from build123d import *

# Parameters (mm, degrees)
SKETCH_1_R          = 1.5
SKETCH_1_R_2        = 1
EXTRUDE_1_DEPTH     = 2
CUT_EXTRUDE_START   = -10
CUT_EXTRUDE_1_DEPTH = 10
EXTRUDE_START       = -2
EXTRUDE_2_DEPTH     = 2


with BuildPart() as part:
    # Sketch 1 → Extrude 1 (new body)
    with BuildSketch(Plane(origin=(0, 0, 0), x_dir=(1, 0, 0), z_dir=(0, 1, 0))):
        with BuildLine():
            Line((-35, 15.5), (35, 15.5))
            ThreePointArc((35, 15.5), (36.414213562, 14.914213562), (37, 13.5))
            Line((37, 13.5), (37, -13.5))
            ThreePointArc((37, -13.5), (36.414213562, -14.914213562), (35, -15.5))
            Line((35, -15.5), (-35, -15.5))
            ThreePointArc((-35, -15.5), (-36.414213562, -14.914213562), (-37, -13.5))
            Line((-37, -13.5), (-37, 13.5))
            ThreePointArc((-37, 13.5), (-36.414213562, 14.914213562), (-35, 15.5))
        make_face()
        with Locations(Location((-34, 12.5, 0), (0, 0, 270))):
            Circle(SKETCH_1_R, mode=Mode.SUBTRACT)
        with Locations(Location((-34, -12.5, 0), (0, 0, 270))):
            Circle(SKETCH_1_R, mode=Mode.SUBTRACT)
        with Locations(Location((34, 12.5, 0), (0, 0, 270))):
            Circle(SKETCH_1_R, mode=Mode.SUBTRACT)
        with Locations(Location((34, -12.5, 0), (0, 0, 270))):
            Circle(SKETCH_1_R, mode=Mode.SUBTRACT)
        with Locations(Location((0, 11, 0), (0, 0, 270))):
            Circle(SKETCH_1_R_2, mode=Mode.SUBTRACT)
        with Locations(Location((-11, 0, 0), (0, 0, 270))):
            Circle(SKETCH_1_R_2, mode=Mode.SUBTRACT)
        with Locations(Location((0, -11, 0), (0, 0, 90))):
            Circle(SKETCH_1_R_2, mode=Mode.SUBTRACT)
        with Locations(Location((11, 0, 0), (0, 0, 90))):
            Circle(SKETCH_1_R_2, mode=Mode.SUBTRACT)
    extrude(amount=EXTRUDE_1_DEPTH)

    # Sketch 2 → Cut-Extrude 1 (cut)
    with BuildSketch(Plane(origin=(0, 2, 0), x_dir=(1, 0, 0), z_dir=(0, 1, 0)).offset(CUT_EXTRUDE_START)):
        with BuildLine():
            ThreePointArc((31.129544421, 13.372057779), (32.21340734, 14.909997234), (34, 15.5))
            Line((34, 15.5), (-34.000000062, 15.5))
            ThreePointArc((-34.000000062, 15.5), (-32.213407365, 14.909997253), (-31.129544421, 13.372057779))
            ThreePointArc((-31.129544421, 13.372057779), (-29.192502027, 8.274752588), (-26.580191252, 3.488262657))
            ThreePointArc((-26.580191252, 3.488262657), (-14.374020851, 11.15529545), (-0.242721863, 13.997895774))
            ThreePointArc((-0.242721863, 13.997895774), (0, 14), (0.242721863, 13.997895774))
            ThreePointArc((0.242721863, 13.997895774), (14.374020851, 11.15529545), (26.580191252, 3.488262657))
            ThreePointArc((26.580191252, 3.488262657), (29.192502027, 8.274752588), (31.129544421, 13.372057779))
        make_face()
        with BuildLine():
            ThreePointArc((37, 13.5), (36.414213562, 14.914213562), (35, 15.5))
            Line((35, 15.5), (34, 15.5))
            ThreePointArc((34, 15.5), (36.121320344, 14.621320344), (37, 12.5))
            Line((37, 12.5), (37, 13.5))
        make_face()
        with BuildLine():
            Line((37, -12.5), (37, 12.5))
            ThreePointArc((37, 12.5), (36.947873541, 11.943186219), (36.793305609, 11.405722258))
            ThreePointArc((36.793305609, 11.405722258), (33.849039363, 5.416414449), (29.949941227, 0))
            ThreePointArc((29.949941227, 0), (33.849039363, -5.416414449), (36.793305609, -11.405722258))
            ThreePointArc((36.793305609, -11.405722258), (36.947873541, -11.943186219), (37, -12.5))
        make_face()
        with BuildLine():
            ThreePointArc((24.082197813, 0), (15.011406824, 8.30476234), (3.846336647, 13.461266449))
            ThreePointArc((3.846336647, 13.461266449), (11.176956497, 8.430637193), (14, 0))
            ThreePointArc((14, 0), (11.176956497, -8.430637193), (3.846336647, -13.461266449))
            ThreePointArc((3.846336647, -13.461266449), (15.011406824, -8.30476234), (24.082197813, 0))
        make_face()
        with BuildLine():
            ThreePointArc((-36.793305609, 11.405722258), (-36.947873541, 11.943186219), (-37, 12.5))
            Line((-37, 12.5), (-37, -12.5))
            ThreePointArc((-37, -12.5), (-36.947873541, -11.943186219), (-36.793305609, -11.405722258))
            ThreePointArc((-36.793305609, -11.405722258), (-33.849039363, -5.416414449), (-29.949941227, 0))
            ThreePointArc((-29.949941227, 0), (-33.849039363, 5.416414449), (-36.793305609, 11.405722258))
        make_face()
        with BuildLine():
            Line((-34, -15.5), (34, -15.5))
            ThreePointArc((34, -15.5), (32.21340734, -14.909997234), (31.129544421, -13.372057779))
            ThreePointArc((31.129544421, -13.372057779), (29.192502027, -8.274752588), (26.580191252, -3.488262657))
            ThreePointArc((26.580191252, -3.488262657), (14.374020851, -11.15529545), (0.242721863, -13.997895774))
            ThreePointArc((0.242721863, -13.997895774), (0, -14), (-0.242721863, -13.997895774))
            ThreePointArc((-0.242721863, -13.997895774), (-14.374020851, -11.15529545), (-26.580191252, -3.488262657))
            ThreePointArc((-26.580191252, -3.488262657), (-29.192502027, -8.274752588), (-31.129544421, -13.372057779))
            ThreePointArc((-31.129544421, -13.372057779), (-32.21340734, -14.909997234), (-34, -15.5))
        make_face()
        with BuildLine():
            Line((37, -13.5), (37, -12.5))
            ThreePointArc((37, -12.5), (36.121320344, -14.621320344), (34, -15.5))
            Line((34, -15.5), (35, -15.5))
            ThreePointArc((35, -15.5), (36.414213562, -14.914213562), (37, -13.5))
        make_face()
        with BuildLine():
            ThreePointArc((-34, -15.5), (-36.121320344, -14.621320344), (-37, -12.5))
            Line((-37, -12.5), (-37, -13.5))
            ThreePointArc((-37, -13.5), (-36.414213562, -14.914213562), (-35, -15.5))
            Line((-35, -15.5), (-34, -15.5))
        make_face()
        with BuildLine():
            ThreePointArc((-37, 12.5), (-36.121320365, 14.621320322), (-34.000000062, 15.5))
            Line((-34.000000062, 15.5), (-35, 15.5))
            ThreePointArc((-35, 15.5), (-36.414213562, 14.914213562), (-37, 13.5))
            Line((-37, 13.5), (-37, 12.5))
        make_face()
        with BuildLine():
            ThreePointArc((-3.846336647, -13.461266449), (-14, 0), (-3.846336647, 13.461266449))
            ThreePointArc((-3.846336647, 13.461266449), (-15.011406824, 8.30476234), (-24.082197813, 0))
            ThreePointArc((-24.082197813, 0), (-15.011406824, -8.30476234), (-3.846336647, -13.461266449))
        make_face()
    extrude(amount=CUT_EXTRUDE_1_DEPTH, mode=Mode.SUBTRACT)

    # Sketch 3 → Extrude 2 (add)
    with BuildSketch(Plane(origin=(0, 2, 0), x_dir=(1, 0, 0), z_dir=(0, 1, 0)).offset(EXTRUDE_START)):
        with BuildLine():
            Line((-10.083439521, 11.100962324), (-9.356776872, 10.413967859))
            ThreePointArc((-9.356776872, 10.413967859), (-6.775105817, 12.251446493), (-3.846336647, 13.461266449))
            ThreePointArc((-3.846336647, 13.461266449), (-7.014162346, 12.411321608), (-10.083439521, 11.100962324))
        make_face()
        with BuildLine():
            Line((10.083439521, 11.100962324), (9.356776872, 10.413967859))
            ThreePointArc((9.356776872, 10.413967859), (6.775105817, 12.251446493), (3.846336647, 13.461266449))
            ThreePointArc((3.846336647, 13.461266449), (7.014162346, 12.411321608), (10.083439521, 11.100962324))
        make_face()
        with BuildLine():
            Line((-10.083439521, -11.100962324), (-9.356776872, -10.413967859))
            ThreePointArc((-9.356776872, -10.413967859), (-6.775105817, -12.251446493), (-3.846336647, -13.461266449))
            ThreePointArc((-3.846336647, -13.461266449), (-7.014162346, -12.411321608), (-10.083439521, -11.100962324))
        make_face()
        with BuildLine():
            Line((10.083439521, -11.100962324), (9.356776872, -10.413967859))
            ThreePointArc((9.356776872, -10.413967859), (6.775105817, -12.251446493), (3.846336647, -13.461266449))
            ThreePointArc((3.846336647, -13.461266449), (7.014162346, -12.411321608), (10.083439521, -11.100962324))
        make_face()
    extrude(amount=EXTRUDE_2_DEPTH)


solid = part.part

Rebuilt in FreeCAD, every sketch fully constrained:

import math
import FreeCAD as App
import Part
import Sketcher

V = App.Vector
Q = App.Units.Quantity

doc = App.newDocument("Part")
body = doc.addObject("PartDesign::Body", "Body")

# Sketch on XZ plane
sketch1 = doc.addObject("Sketcher::SketchObject", "Sketch")
body.addObject(sketch1)
sketch1.AttachmentSupport = (doc.XZ_Plane, [""])
sketch1.MapMode = "FlatFace"
sketch1.addGeometry(Part.LineSegment(V(35, -15.5, 0), V(-35, -15.5, 0)), False)
sketch1.addGeometry(Part.ArcOfCircle(Part.Circle(V(-35, -13.5, 0), V(0, 0, 1), 2), math.radians(-180), math.radians(-90)), False)
sketch1.addGeometry(Part.LineSegment(V(-37, -13.5, 0), V(-37, 13.5, 0)), False)
sketch1.addGeometry(Part.ArcOfCircle(Part.Circle(V(-35, 13.5, 0), V(0, 0, 1), 2), math.radians(90), math.radians(180)), False)
sketch1.addGeometry(Part.LineSegment(V(-35, 15.5, 0), V(35, 15.5, 0)), False)
sketch1.addGeometry(Part.ArcOfCircle(Part.Circle(V(35, 13.5, 0), V(0, 0, 1), 2), math.radians(0), math.radians(90)), False)
sketch1.addGeometry(Part.LineSegment(V(37, 13.5, 0), V(37, -13.5, 0)), False)
sketch1.addGeometry(Part.ArcOfCircle(Part.Circle(V(35, -13.5, 0), V(0, 0, 1), 2), math.radians(-90), math.radians(0)), False)
sketch1.addGeometry(Part.Circle(V(34, 12.5, 0), V(0, 0, 1), 1.5), False)
sketch1.addGeometry(Part.Circle(V(0, 11, 0), V(0, 0, 1), 1), False)
sketch1.addGeometry(Part.Circle(V(-34, 12.5, 0), V(0, 0, 1), 1.5), False)
sketch1.addGeometry(Part.Circle(V(11, 0, 0), V(0, 0, 1), 1), False)
sketch1.addGeometry(Part.Circle(V(34, -12.5, 0), V(0, 0, 1), 1.5), False)
sketch1.addGeometry(Part.Circle(V(-11, 0, 0), V(0, 0, 1), 1), False)
sketch1.addGeometry(Part.Circle(V(0, -11, 0), V(0, 0, 1), 1), False)
sketch1.addGeometry(Part.Circle(V(-34, -12.5, 0), V(0, 0, 1), 1.5), False)
sketch1.addConstraint(Sketcher.Constraint("Tangent", 0, 2, 1, 2))
sketch1.addConstraint(Sketcher.Constraint("Tangent", 1, 1, 2, 1))
sketch1.addConstraint(Sketcher.Constraint("Tangent", 2, 2, 3, 2))
sketch1.addConstraint(Sketcher.Constraint("Tangent", 3, 1, 4, 1))
sketch1.addConstraint(Sketcher.Constraint("Tangent", 4, 2, 5, 2))
sketch1.addConstraint(Sketcher.Constraint("Tangent", 5, 1, 6, 1))
sketch1.addConstraint(Sketcher.Constraint("Tangent", 6, 2, 7, 2))
sketch1.addConstraint(Sketcher.Constraint("Tangent", 7, 1, 0, 1))
sketch1.addConstraint(Sketcher.Constraint("Horizontal", 0))
sketch1.addConstraint(Sketcher.Constraint("Vertical", 2))
sketch1.addConstraint(Sketcher.Constraint("Horizontal", 4))
sketch1.addConstraint(Sketcher.Constraint("Vertical", 6))
sketch1.addConstraint(Sketcher.Constraint("Equal", 1, 3))
sketch1.addConstraint(Sketcher.Constraint("Equal", 3, 5))
sketch1.addConstraint(Sketcher.Constraint("Equal", 5, 7))
sketch1.addConstraint(Sketcher.Constraint("Equal", 8, 10))
sketch1.addConstraint(Sketcher.Constraint("Equal", 9, 11))
sketch1.addConstraint(Sketcher.Constraint("Equal", 10, 12))
sketch1.addConstraint(Sketcher.Constraint("Equal", 11, 13))
sketch1.addConstraint(Sketcher.Constraint("Equal", 13, 14))
sketch1.addConstraint(Sketcher.Constraint("Equal", 12, 15))
sketch1.addConstraint(Sketcher.Constraint("Symmetric", 1, 3, 5, 3, -1, 1))
sketch1.addConstraint(Sketcher.Constraint("Symmetric", 10, 3, 12, 3, -1, 1))
sketch1.addConstraint(Sketcher.Constraint("Symmetric", 11, 3, 13, 3, -1, 1))
sketch1.addConstraint(Sketcher.Constraint("Symmetric", 9, 3, 14, 3, -1, 1))
sketch1.addConstraint(Sketcher.Constraint("Symmetric", 8, 3, 15, 3, -1, 1))
sketch1.addConstraint(Sketcher.Constraint("Symmetric", 8, 3, 10, 3, -2))
sketch1.addConstraint(Sketcher.Constraint("PointOnObject", 9, 3, -2))
sketch1.addConstraint(Sketcher.Constraint("PointOnObject", 11, 3, -1))
sketch1.addConstraint(Sketcher.Constraint("Diameter", 8, Q("3 mm")))
sketch1.addConstraint(Sketcher.Constraint("Diameter", 9, Q("2 mm")))
sketch1.addConstraint(Sketcher.Constraint("Radius", 1, Q("2 mm")))
sketch1.addConstraint(Sketcher.Constraint("DistanceX", 0, 2, 0, 1, Q("70 mm")))
sketch1.addConstraint(Sketcher.Constraint("DistanceY", 2, 1, 2, 2, Q("27 mm")))
sketch1.addConstraint(Sketcher.Constraint("DistanceX", -1, 1, 8, 3, Q("34 mm")))
sketch1.addConstraint(Sketcher.Constraint("DistanceY", -1, 1, 9, 3, Q("11 mm")))
sketch1.addConstraint(Sketcher.Constraint("DistanceX", -1, 1, 11, 3, Q("11 mm")))
sketch1.addConstraint(Sketcher.Constraint("DistanceY", 8, 3, 5, 3, Q("1 mm")))
pad1 = doc.addObject("PartDesign::Pad", "Pad")
body.addObject(pad1)
pad1.Profile = sketch1
pad1.Length = 2
pad1.Reversed = True

# Sketch on XZ plane
sketch2 = doc.addObject("Sketcher::SketchObject", "Sketch001")
body.addObject(sketch2)
sketch2.AttachmentSupport = (doc.XZ_Plane, [""])
sketch2.MapMode = "FlatFace"
sketch2.AttachmentOffset = App.Placement(V(0, 0, 8), App.Rotation())
sketch2.addGeometry(Part.ArcOfCircle(Part.Circle(V(34, -12.5, 0), V(0, 0, 1), 3), math.radians(-163), math.radians(-90)), False)
sketch2.addGeometry(Part.LineSegment(V(34, -15.5, 0), V(-34, -15.5, 0)), False)
sketch2.addGeometry(Part.ArcOfCircle(Part.Circle(V(-34, -12.5, 0), V(0, 0, 1), 3), math.radians(-90), math.radians(-17)), False)
sketch2.addGeometry(Part.ArcOfCircle(Part.Circle(V(7.14, -25, 0), V(0, 0, 1), 40), math.radians(147.47), math.radians(163.1)), False)
sketch2.addGeometry(Part.ArcOfCircle(Part.Circle(V(0.45, 26, 0), V(0, 0, 1), 40), math.radians(-133), math.radians(-91)), False)
sketch2.addGeometry(Part.ArcOfCircle(Part.Circle(V(0, 0, 0), V(0, 0, 1), 14), math.radians(-90.99), math.radians(-89.01)), False)
sketch2.addGeometry(Part.ArcOfCircle(Part.Circle(V(-0.45, 26, 0), V(0, 0, 1), 40), math.radians(-89), math.radians(-47)), False)
sketch2.addGeometry(Part.ArcOfCircle(Part.Circle(V(-7.14, -25, 0), V(0, 0, 1), 40), math.radians(16.9), math.radians(32.53)), False)
sketch2.addGeometry(Part.ArcOfCircle(Part.Circle(V(35, -13.5, 0), V(0, 0, 1), 2), math.radians(-90), math.radians(0)), False)
sketch2.addGeometry(Part.LineSegment(V(35, -15.5, 0), V(34, -15.5, 0)), False)
sketch2.addGeometry(Part.ArcOfCircle(Part.Circle(V(34, -12.5, 0), V(0, 0, 1), 3), math.radians(-90), math.radians(0)), False)
sketch2.addGeometry(Part.LineSegment(V(37, -12.5, 0), V(37, -13.5, 0)), False)
sketch2.addGeometry(Part.LineSegment(V(37, 12.5, 0), V(37, -12.5, 0)), False)
sketch2.addGeometry(Part.ArcOfCircle(Part.Circle(V(34, -12.5, 0), V(0, 0, 1), 3), math.radians(0), math.radians(21)), False)
sketch2.addGeometry(Part.ArcOfCircle(Part.Circle(V(-0.45, -26, 0), V(0, 0, 1), 40), math.radians(21.39), math.radians(40.53)), False)
sketch2.addGeometry(Part.ArcOfCircle(Part.Circle(V(-0.45, 26, 0), V(0, 0, 1), 40), math.radians(-40.53), math.radians(-21.39)), False)
sketch2.addGeometry(Part.ArcOfCircle(Part.Circle(V(34, 12.5, 0), V(0, 0, 1), 3), math.radians(-21), math.radians(0)), False)
sketch2.addGeometry(Part.ArcOfCircle(Part.Circle(V(-7.14, 25, 0), V(0, 0, 1), 40), math.radians(-74), math.radians(-39)), False)
sketch2.addGeometry(Part.ArcOfCircle(Part.Circle(V(0, 0, 0), V(0, 0, 1), 14), math.radians(-74), math.radians(0)), False)
sketch2.addGeometry(Part.ArcOfCircle(Part.Circle(V(0, 0, 0), V(0, 0, 1), 14), math.radians(0), math.radians(74)), False)
sketch2.addGeometry(Part.ArcOfCircle(Part.Circle(V(-7.14, -25, 0), V(0, 0, 1), 40), math.radians(39), math.radians(74)), False)
sketch2.addGeometry(Part.ArcOfCircle(Part.Circle(V(-34, -12.5, 0), V(0, 0, 1), 3), math.radians(159), math.radians(180)), False)
sketch2.addGeometry(Part.LineSegment(V(-37, -12.5, 0), V(-37, 12.5, 0)), False)
sketch2.addGeometry(Part.ArcOfCircle(Part.Circle(V(-34, 12.5, 0), V(0, 0, 1), 3), math.radians(180), math.radians(201)), False)
sketch2.addGeometry(Part.ArcOfCircle(Part.Circle(V(0.45, 26, 0), V(0, 0, 1), 40), math.radians(-158.61), math.radians(-139.47)), False)
sketch2.addGeometry(Part.ArcOfCircle(Part.Circle(V(0.45, -26, 0), V(0, 0, 1), 40), math.radians(139.47), math.radians(158.61)), False)
sketch2.addGeometry(Part.LineSegment(V(-34, 15.5, 0), V(34, 15.5, 0)), False)
sketch2.addGeometry(Part.ArcOfCircle(Part.Circle(V(34, 12.5, 0), V(0, 0, 1), 3), math.radians(90), math.radians(163)), False)
sketch2.addGeometry(Part.ArcOfCircle(Part.Circle(V(-7.14, 25, 0), V(0, 0, 1), 40), math.radians(-32.53), math.radians(-16.9)), False)
sketch2.addGeometry(Part.ArcOfCircle(Part.Circle(V(-0.45, -26, 0), V(0, 0, 1), 40), math.radians(47), math.radians(89)), False)
sketch2.addGeometry(Part.ArcOfCircle(Part.Circle(V(0, 0, 0), V(0, 0, 1), 14), math.radians(89.01), math.radians(90.99)), False)
sketch2.addGeometry(Part.ArcOfCircle(Part.Circle(V(0.45, -26, 0), V(0, 0, 1), 40), math.radians(91), math.radians(133)), False)
sketch2.addGeometry(Part.ArcOfCircle(Part.Circle(V(7.14, 25, 0), V(0, 0, 1), 40), math.radians(-163.1), math.radians(-147.47)), False)
sketch2.addGeometry(Part.ArcOfCircle(Part.Circle(V(-34, 12.5, 0), V(0, 0, 1), 3), math.radians(17), math.radians(90)), False)
sketch2.addGeometry(Part.LineSegment(V(37, 13.5, 0), V(37, 12.5, 0)), False)
sketch2.addGeometry(Part.ArcOfCircle(Part.Circle(V(34, 12.5, 0), V(0, 0, 1), 3), math.radians(0), math.radians(90)), False)
sketch2.addGeometry(Part.LineSegment(V(34, 15.5, 0), V(35, 15.5, 0)), False)
sketch2.addGeometry(Part.ArcOfCircle(Part.Circle(V(35, 13.5, 0), V(0, 0, 1), 2), math.radians(0), math.radians(90)), False)
sketch2.addGeometry(Part.ArcOfCircle(Part.Circle(V(-34, 12.5, 0), V(0, 0, 1), 3), math.radians(90), math.radians(180)), False)
sketch2.addGeometry(Part.LineSegment(V(-37, 12.5, 0), V(-37, 13.5, 0)), False)
sketch2.addGeometry(Part.ArcOfCircle(Part.Circle(V(-35, 13.5, 0), V(0, 0, 1), 2), math.radians(90), math.radians(180)), False)
sketch2.addGeometry(Part.LineSegment(V(-35, 15.5, 0), V(-34, 15.5, 0)), False)
sketch2.addGeometry(Part.ArcOfCircle(Part.Circle(V(-34, -12.5, 0), V(0, 0, 1), 3), math.radians(180), math.radians(270)), False)
sketch2.addGeometry(Part.LineSegment(V(-34, -15.5, 0), V(-35, -15.5, 0)), False)
sketch2.addGeometry(Part.ArcOfCircle(Part.Circle(V(-35, -13.5, 0), V(0, 0, 1), 2), math.radians(-180), math.radians(-90)), False)
sketch2.addGeometry(Part.LineSegment(V(-37, -13.5, 0), V(-37, -12.5, 0)), False)
sketch2.addGeometry(Part.ArcOfCircle(Part.Circle(V(0, 0, 0), V(0, 0, 1), 14), math.radians(106), math.radians(254)), False)
sketch2.addGeometry(Part.ArcOfCircle(Part.Circle(V(7.14, 25, 0), V(0, 0, 1), 40), math.radians(-141), math.radians(-106)), False)
sketch2.addGeometry(Part.ArcOfCircle(Part.Circle(V(7.14, -25, 0), V(0, 0, 1), 40), math.radians(106), math.radians(141)), False)
sketch2.addConstraint(Sketcher.Constraint("Tangent", 0, 2, 1, 1))
sketch2.addConstraint(Sketcher.Constraint("Tangent", 1, 2, 2, 1))
sketch2.addConstraint(Sketcher.Constraint("Tangent", 2, 2, 3, 2))
sketch2.addConstraint(Sketcher.Constraint("Coincident", 3, 1, 4, 1))
sketch2.addConstraint(Sketcher.Constraint("Tangent", 4, 2, 5, 1))
sketch2.addConstraint(Sketcher.Constraint("Tangent", 5, 2, 6, 1))
sketch2.addConstraint(Sketcher.Constraint("Coincident", 6, 2, 7, 2))
sketch2.addConstraint(Sketcher.Constraint("Tangent", 7, 1, 0, 1))
sketch2.addConstraint(Sketcher.Constraint("Tangent", 8, 1, 9, 1))
sketch2.addConstraint(Sketcher.Constraint("Tangent", 9, 2, 10, 1))
sketch2.addConstraint(Sketcher.Constraint("Tangent", 10, 2, 11, 1))
sketch2.addConstraint(Sketcher.Constraint("Tangent", 11, 2, 8, 2))
sketch2.addConstraint(Sketcher.Constraint("Tangent", 12, 2, 13, 1))
sketch2.addConstraint(Sketcher.Constraint("Tangent", 13, 2, 14, 1))
sketch2.addConstraint(Sketcher.Constraint("Coincident", 14, 2, 15, 1))
sketch2.addConstraint(Sketcher.Constraint("Tangent", 15, 2, 16, 1))
sketch2.addConstraint(Sketcher.Constraint("Tangent", 16, 2, 12, 1))
sketch2.addConstraint(Sketcher.Constraint("Tangent", 17, 1, 18, 1))
sketch2.addConstraint(Sketcher.Constraint("Tangent", 18, 2, 19, 1))
sketch2.addConstraint(Sketcher.Constraint("Tangent", 19, 2, 20, 2))
sketch2.addConstraint(Sketcher.Constraint("Coincident", 20, 1, 17, 2))
sketch2.addConstraint(Sketcher.Constraint("Tangent", 21, 2, 22, 1))
sketch2.addConstraint(Sketcher.Constraint("Tangent", 22, 2, 23, 1))
sketch2.addConstraint(Sketcher.Constraint("Tangent", 23, 2, 24, 1))
sketch2.addConstraint(Sketcher.Constraint("Coincident", 24, 2, 25, 1))
sketch2.addConstraint(Sketcher.Constraint("Tangent", 25, 2, 21, 1))
sketch2.addConstraint(Sketcher.Constraint("Tangent", 26, 2, 27, 1))
sketch2.addConstraint(Sketcher.Constraint("Tangent", 27, 2, 28, 2))
sketch2.addConstraint(Sketcher.Constraint("Coincident", 28, 1, 29, 1))
sketch2.addConstraint(Sketcher.Constraint("Tangent", 29, 2, 30, 1))
sketch2.addConstraint(Sketcher.Constraint("Tangent", 30, 2, 31, 1))
sketch2.addConstraint(Sketcher.Constraint("Coincident", 31, 2, 32, 2))
sketch2.addConstraint(Sketcher.Constraint("Tangent", 32, 1, 33, 1))
sketch2.addConstraint(Sketcher.Constraint("Tangent", 33, 2, 26, 1))
sketch2.addConstraint(Sketcher.Constraint("Tangent", 34, 2, 35, 1))
sketch2.addConstraint(Sketcher.Constraint("Tangent", 35, 2, 36, 1))
sketch2.addConstraint(Sketcher.Constraint("Tangent", 36, 2, 37, 2))
sketch2.addConstraint(Sketcher.Constraint("Tangent", 37, 1, 34, 1))
sketch2.addConstraint(Sketcher.Constraint("Tangent", 38, 2, 39, 1))
sketch2.addConstraint(Sketcher.Constraint("Tangent", 39, 2, 40, 2))
sketch2.addConstraint(Sketcher.Constraint("Tangent", 40, 1, 41, 1))
sketch2.addConstraint(Sketcher.Constraint("Tangent", 41, 2, 38, 1))
sketch2.addConstraint(Sketcher.Constraint("Tangent", 42, 2, 43, 1))
sketch2.addConstraint(Sketcher.Constraint("Tangent", 43, 2, 44, 2))
sketch2.addConstraint(Sketcher.Constraint("Tangent", 44, 1, 45, 1))
sketch2.addConstraint(Sketcher.Constraint("Tangent", 45, 2, 42, 1))
sketch2.addConstraint(Sketcher.Constraint("Tangent", 46, 2, 47, 2))
sketch2.addConstraint(Sketcher.Constraint("Coincident", 47, 1, 48, 2))
sketch2.addConstraint(Sketcher.Constraint("Tangent", 48, 1, 46, 1))
sketch2.addConstraint(Sketcher.Constraint("Horizontal", 1))
sketch2.addConstraint(Sketcher.Constraint("Horizontal", 9))
sketch2.addConstraint(Sketcher.Constraint("Vertical", 11))
sketch2.addConstraint(Sketcher.Constraint("Vertical", 12))
sketch2.addConstraint(Sketcher.Constraint("Vertical", 22))
sketch2.addConstraint(Sketcher.Constraint("Horizontal", 26))
sketch2.addConstraint(Sketcher.Constraint("Vertical", 34))
sketch2.addConstraint(Sketcher.Constraint("Horizontal", 36))
sketch2.addConstraint(Sketcher.Constraint("Vertical", 39))
sketch2.addConstraint(Sketcher.Constraint("Horizontal", 41))
sketch2.addConstraint(Sketcher.Constraint("Horizontal", 43))
sketch2.addConstraint(Sketcher.Constraint("Vertical", 45))
sketch2.addConstraint(Sketcher.Constraint("Coincident", 5, 3, -1, 1))
sketch2.addConstraint(Sketcher.Constraint("Coincident", 18, 3, -1, 1))
sketch2.addConstraint(Sketcher.Constraint("Coincident", 30, 3, -1, 1))
sketch2.addConstraint(Sketcher.Constraint("Coincident", 46, 3, -1, 1))
sketch2.addConstraint(Sketcher.Constraint("Coincident", 10, 3, 0, 3))
sketch2.addConstraint(Sketcher.Constraint("Coincident", 13, 3, 0, 3))
sketch2.addConstraint(Sketcher.Constraint("Coincident", 15, 3, 6, 3))
sketch2.addConstraint(Sketcher.Constraint("Coincident", 20, 3, 7, 3))
sketch2.addConstraint(Sketcher.Constraint("Coincident", 21, 3, 2, 3))
sketch2.addConstraint(Sketcher.Constraint("Coincident", 24, 3, 4, 3))
sketch2.addConstraint(Sketcher.Constraint("Coincident", 27, 3, 16, 3))
sketch2.addConstraint(Sketcher.Constraint("Coincident", 28, 3, 17, 3))
sketch2.addConstraint(Sketcher.Constraint("Coincident", 29, 3, 14, 3))
sketch2.addConstraint(Sketcher.Constraint("Coincident", 31, 3, 25, 3))
sketch2.addConstraint(Sketcher.Constraint("Coincident", 33, 3, 23, 3))
sketch2.addConstraint(Sketcher.Constraint("Coincident", 35, 3, 16, 3))
sketch2.addConstraint(Sketcher.Constraint("Coincident", 38, 3, 23, 3))
sketch2.addConstraint(Sketcher.Constraint("Coincident", 42, 3, 2, 3))
sketch2.addConstraint(Sketcher.Constraint("Coincident", 47, 3, 32, 3))
sketch2.addConstraint(Sketcher.Constraint("Coincident", 48, 3, 3, 3))
sketch2.addConstraint(Sketcher.Constraint("Equal", 0, 2))
sketch2.addConstraint(Sketcher.Constraint("Equal", 3, 4))
sketch2.addConstraint(Sketcher.Constraint("Equal", 4, 6))
sketch2.addConstraint(Sketcher.Constraint("Equal", 6, 7))
sketch2.addConstraint(Sketcher.Constraint("Equal", 2, 10))
sketch2.addConstraint(Sketcher.Constraint("Equal", 10, 13))
sketch2.addConstraint(Sketcher.Constraint("Equal", 7, 14))
sketch2.addConstraint(Sketcher.Constraint("Equal", 14, 15))
sketch2.addConstraint(Sketcher.Constraint("Equal", 13, 16))
sketch2.addConstraint(Sketcher.Constraint("Equal", 15, 17))
sketch2.addConstraint(Sketcher.Constraint("Equal", 5, 18))
sketch2.addConstraint(Sketcher.Constraint("Equal", 18, 19))
sketch2.addConstraint(Sketcher.Constraint("Equal", 17, 20))
sketch2.addConstraint(Sketcher.Constraint("Equal", 16, 21))
sketch2.addConstraint(Sketcher.Constraint("Equal", 21, 23))
sketch2.addConstraint(Sketcher.Constraint("Equal", 20, 24))
sketch2.addConstraint(Sketcher.Constraint("Equal", 24, 25))
sketch2.addConstraint(Sketcher.Constraint("Equal", 23, 27))
sketch2.addConstraint(Sketcher.Constraint("Equal", 25, 28))
sketch2.addConstraint(Sketcher.Constraint("Equal", 28, 29))
sketch2.addConstraint(Sketcher.Constraint("Equal", 19, 30))
sketch2.addConstraint(Sketcher.Constraint("Equal", 29, 31))
sketch2.addConstraint(Sketcher.Constraint("Equal", 31, 32))
sketch2.addConstraint(Sketcher.Constraint("Equal", 27, 33))
sketch2.addConstraint(Sketcher.Constraint("Equal", 33, 35))
sketch2.addConstraint(Sketcher.Constraint("Equal", 8, 37))
sketch2.addConstraint(Sketcher.Constraint("Equal", 35, 38))
sketch2.addConstraint(Sketcher.Constraint("Equal", 37, 40))
sketch2.addConstraint(Sketcher.Constraint("Equal", 38, 42))
sketch2.addConstraint(Sketcher.Constraint("Equal", 40, 44))
sketch2.addConstraint(Sketcher.Constraint("Equal", 30, 46))
sketch2.addConstraint(Sketcher.Constraint("Equal", 32, 47))
sketch2.addConstraint(Sketcher.Constraint("Equal", 47, 48))
sketch2.addConstraint(Sketcher.Constraint("Symmetric", 2, 3, 16, 3, -1, 1))
sketch2.addConstraint(Sketcher.Constraint("PointOnObject", 18, 2, -1))
sketch2.addConstraint(Sketcher.Constraint("Radius", 0, Q("3 mm")))
sketch2.addConstraint(Sketcher.Constraint("Radius", 3, Q("40 mm")))
sketch2.addConstraint(Sketcher.Constraint("Radius", 5, Q("14.000001 mm")))
sketch2.addConstraint(Sketcher.Constraint("Radius", 8, Q("2 mm")))
sketch2.addConstraint(Sketcher.Constraint("DistanceX", 1, 2, 1, 1, Q("68 mm")))
sketch2.addConstraint(Sketcher.Constraint("DistanceY", 12, 2, 12, 1, Q("25 mm")))
pocket1 = doc.addObject("PartDesign::Pocket", "Pocket")
body.addObject(pocket1)
pocket1.Profile = sketch2
pocket1.Length = 10

# Sketch on XZ plane
sketch3 = doc.addObject("Sketcher::SketchObject", "Sketch002")
body.addObject(sketch3)
sketch3.AttachmentSupport = (doc.XZ_Plane, [""])
sketch3.MapMode = "FlatFace"
sketch3.addGeometry(Part.LineSegment(V(-10.1, -11.1, 0), V(-9.4, -10.4, 0)), False)
sketch3.addGeometry(Part.ArcOfCircle(Part.Circle(V(0, 0, 0), V(0, 0, 1), 14), math.radians(-132), math.radians(-106)), False)
sketch3.addGeometry(Part.ArcOfCircle(Part.Circle(V(7.1, 25, 0), V(0, 0, 1), 40), math.radians(-115.51), math.radians(-105.95)), False)
sketch3.addGeometry(Part.LineSegment(V(9.4, -10.4, 0), V(10.1, -11.1, 0)), False)
sketch3.addGeometry(Part.ArcOfCircle(Part.Circle(V(-7.1, 25, 0), V(0, 0, 1), 40), math.radians(-74.05), math.radians(-64.49)), False)
sketch3.addGeometry(Part.ArcOfCircle(Part.Circle(V(0, 0, 0), V(0, 0, 1), 14), math.radians(-74), math.radians(-48)), False)
sketch3.addGeometry(Part.LineSegment(V(-9.4, 10.4, 0), V(-10.1, 11.1, 0)), False)
sketch3.addGeometry(Part.ArcOfCircle(Part.Circle(V(7.1, -25, 0), V(0, 0, 1), 40), math.radians(105.95), math.radians(115.51)), False)
sketch3.addGeometry(Part.ArcOfCircle(Part.Circle(V(0, 0, 0), V(0, 0, 1), 14), math.radians(106), math.radians(132)), False)
sketch3.addGeometry(Part.LineSegment(V(10.1, 11.1, 0), V(9.4, 10.4, 0)), False)
sketch3.addGeometry(Part.ArcOfCircle(Part.Circle(V(0, 0, 0), V(0, 0, 1), 14), math.radians(48), math.radians(74)), False)
sketch3.addGeometry(Part.ArcOfCircle(Part.Circle(V(-7.1, -25, 0), V(0, 0, 1), 40), math.radians(64.49), math.radians(74.05)), False)
sketch3.addConstraint(Sketcher.Constraint("Coincident", 0, 2, 1, 1))
sketch3.addConstraint(Sketcher.Constraint("Tangent", 1, 2, 2, 2))
sketch3.addConstraint(Sketcher.Constraint("Coincident", 2, 1, 0, 1))
sketch3.addConstraint(Sketcher.Constraint("Coincident", 3, 2, 4, 2))
sketch3.addConstraint(Sketcher.Constraint("Tangent", 4, 1, 5, 1))
sketch3.addConstraint(Sketcher.Constraint("Coincident", 5, 2, 3, 1))
sketch3.addConstraint(Sketcher.Constraint("Coincident", 6, 2, 7, 2))
sketch3.addConstraint(Sketcher.Constraint("Tangent", 7, 1, 8, 1))
sketch3.addConstraint(Sketcher.Constraint("Coincident", 8, 2, 6, 1))
sketch3.addConstraint(Sketcher.Constraint("Coincident", 9, 2, 10, 1))
sketch3.addConstraint(Sketcher.Constraint("Tangent", 10, 2, 11, 2))
sketch3.addConstraint(Sketcher.Constraint("Coincident", 11, 1, 9, 1))
sketch3.addConstraint(Sketcher.Constraint("Coincident", 1, 3, -1, 1))
sketch3.addConstraint(Sketcher.Constraint("Coincident", 5, 3, -1, 1))
sketch3.addConstraint(Sketcher.Constraint("Coincident", 8, 3, -1, 1))
sketch3.addConstraint(Sketcher.Constraint("Coincident", 10, 3, -1, 1))
sketch3.addConstraint(Sketcher.Constraint("Equal", 2, 4))
sketch3.addConstraint(Sketcher.Constraint("Equal", 1, 5))
sketch3.addConstraint(Sketcher.Constraint("Equal", 4, 7))
sketch3.addConstraint(Sketcher.Constraint("Equal", 5, 8))
sketch3.addConstraint(Sketcher.Constraint("Equal", 8, 10))
sketch3.addConstraint(Sketcher.Constraint("Equal", 7, 11))
sketch3.addConstraint(Sketcher.Constraint("Symmetric", 3, 2, 6, 2, -1, 1))
sketch3.addConstraint(Sketcher.Constraint("Symmetric", 2, 1, 11, 1, -1, 1))
sketch3.addConstraint(Sketcher.Constraint("Symmetric", 2, 1, 3, 2, -2))
sketch3.addConstraint(Sketcher.Constraint("Parallel", 3, 6))
sketch3.addConstraint(Sketcher.Constraint("Parallel", 0, 9))
sketch3.addConstraint(Sketcher.Constraint("Horizontal", 0, 2, 5, 2))
sketch3.addConstraint(Sketcher.Constraint("Radius", 1, Q("14 mm")))
sketch3.addConstraint(Sketcher.Constraint("Radius", 2, Q("40 mm")))
sketch3.addConstraint(Sketcher.Constraint("Distance", 0, Q("1 mm")))
sketch3.addConstraint(Sketcher.Constraint("DistanceY", 1, 2, 0, 2, Q("3.047299 mm")))
sketch3.addConstraint(Sketcher.Constraint("DistanceX", 2, 1, -1, 1, Q("10.08344 mm")))
pad2 = doc.addObject("PartDesign::Pad", "Pad001")
body.addObject(pad2)
pad2.Profile = sketch3
pad2.Length = 2
pad2.Reversed = True

doc.recompute()
